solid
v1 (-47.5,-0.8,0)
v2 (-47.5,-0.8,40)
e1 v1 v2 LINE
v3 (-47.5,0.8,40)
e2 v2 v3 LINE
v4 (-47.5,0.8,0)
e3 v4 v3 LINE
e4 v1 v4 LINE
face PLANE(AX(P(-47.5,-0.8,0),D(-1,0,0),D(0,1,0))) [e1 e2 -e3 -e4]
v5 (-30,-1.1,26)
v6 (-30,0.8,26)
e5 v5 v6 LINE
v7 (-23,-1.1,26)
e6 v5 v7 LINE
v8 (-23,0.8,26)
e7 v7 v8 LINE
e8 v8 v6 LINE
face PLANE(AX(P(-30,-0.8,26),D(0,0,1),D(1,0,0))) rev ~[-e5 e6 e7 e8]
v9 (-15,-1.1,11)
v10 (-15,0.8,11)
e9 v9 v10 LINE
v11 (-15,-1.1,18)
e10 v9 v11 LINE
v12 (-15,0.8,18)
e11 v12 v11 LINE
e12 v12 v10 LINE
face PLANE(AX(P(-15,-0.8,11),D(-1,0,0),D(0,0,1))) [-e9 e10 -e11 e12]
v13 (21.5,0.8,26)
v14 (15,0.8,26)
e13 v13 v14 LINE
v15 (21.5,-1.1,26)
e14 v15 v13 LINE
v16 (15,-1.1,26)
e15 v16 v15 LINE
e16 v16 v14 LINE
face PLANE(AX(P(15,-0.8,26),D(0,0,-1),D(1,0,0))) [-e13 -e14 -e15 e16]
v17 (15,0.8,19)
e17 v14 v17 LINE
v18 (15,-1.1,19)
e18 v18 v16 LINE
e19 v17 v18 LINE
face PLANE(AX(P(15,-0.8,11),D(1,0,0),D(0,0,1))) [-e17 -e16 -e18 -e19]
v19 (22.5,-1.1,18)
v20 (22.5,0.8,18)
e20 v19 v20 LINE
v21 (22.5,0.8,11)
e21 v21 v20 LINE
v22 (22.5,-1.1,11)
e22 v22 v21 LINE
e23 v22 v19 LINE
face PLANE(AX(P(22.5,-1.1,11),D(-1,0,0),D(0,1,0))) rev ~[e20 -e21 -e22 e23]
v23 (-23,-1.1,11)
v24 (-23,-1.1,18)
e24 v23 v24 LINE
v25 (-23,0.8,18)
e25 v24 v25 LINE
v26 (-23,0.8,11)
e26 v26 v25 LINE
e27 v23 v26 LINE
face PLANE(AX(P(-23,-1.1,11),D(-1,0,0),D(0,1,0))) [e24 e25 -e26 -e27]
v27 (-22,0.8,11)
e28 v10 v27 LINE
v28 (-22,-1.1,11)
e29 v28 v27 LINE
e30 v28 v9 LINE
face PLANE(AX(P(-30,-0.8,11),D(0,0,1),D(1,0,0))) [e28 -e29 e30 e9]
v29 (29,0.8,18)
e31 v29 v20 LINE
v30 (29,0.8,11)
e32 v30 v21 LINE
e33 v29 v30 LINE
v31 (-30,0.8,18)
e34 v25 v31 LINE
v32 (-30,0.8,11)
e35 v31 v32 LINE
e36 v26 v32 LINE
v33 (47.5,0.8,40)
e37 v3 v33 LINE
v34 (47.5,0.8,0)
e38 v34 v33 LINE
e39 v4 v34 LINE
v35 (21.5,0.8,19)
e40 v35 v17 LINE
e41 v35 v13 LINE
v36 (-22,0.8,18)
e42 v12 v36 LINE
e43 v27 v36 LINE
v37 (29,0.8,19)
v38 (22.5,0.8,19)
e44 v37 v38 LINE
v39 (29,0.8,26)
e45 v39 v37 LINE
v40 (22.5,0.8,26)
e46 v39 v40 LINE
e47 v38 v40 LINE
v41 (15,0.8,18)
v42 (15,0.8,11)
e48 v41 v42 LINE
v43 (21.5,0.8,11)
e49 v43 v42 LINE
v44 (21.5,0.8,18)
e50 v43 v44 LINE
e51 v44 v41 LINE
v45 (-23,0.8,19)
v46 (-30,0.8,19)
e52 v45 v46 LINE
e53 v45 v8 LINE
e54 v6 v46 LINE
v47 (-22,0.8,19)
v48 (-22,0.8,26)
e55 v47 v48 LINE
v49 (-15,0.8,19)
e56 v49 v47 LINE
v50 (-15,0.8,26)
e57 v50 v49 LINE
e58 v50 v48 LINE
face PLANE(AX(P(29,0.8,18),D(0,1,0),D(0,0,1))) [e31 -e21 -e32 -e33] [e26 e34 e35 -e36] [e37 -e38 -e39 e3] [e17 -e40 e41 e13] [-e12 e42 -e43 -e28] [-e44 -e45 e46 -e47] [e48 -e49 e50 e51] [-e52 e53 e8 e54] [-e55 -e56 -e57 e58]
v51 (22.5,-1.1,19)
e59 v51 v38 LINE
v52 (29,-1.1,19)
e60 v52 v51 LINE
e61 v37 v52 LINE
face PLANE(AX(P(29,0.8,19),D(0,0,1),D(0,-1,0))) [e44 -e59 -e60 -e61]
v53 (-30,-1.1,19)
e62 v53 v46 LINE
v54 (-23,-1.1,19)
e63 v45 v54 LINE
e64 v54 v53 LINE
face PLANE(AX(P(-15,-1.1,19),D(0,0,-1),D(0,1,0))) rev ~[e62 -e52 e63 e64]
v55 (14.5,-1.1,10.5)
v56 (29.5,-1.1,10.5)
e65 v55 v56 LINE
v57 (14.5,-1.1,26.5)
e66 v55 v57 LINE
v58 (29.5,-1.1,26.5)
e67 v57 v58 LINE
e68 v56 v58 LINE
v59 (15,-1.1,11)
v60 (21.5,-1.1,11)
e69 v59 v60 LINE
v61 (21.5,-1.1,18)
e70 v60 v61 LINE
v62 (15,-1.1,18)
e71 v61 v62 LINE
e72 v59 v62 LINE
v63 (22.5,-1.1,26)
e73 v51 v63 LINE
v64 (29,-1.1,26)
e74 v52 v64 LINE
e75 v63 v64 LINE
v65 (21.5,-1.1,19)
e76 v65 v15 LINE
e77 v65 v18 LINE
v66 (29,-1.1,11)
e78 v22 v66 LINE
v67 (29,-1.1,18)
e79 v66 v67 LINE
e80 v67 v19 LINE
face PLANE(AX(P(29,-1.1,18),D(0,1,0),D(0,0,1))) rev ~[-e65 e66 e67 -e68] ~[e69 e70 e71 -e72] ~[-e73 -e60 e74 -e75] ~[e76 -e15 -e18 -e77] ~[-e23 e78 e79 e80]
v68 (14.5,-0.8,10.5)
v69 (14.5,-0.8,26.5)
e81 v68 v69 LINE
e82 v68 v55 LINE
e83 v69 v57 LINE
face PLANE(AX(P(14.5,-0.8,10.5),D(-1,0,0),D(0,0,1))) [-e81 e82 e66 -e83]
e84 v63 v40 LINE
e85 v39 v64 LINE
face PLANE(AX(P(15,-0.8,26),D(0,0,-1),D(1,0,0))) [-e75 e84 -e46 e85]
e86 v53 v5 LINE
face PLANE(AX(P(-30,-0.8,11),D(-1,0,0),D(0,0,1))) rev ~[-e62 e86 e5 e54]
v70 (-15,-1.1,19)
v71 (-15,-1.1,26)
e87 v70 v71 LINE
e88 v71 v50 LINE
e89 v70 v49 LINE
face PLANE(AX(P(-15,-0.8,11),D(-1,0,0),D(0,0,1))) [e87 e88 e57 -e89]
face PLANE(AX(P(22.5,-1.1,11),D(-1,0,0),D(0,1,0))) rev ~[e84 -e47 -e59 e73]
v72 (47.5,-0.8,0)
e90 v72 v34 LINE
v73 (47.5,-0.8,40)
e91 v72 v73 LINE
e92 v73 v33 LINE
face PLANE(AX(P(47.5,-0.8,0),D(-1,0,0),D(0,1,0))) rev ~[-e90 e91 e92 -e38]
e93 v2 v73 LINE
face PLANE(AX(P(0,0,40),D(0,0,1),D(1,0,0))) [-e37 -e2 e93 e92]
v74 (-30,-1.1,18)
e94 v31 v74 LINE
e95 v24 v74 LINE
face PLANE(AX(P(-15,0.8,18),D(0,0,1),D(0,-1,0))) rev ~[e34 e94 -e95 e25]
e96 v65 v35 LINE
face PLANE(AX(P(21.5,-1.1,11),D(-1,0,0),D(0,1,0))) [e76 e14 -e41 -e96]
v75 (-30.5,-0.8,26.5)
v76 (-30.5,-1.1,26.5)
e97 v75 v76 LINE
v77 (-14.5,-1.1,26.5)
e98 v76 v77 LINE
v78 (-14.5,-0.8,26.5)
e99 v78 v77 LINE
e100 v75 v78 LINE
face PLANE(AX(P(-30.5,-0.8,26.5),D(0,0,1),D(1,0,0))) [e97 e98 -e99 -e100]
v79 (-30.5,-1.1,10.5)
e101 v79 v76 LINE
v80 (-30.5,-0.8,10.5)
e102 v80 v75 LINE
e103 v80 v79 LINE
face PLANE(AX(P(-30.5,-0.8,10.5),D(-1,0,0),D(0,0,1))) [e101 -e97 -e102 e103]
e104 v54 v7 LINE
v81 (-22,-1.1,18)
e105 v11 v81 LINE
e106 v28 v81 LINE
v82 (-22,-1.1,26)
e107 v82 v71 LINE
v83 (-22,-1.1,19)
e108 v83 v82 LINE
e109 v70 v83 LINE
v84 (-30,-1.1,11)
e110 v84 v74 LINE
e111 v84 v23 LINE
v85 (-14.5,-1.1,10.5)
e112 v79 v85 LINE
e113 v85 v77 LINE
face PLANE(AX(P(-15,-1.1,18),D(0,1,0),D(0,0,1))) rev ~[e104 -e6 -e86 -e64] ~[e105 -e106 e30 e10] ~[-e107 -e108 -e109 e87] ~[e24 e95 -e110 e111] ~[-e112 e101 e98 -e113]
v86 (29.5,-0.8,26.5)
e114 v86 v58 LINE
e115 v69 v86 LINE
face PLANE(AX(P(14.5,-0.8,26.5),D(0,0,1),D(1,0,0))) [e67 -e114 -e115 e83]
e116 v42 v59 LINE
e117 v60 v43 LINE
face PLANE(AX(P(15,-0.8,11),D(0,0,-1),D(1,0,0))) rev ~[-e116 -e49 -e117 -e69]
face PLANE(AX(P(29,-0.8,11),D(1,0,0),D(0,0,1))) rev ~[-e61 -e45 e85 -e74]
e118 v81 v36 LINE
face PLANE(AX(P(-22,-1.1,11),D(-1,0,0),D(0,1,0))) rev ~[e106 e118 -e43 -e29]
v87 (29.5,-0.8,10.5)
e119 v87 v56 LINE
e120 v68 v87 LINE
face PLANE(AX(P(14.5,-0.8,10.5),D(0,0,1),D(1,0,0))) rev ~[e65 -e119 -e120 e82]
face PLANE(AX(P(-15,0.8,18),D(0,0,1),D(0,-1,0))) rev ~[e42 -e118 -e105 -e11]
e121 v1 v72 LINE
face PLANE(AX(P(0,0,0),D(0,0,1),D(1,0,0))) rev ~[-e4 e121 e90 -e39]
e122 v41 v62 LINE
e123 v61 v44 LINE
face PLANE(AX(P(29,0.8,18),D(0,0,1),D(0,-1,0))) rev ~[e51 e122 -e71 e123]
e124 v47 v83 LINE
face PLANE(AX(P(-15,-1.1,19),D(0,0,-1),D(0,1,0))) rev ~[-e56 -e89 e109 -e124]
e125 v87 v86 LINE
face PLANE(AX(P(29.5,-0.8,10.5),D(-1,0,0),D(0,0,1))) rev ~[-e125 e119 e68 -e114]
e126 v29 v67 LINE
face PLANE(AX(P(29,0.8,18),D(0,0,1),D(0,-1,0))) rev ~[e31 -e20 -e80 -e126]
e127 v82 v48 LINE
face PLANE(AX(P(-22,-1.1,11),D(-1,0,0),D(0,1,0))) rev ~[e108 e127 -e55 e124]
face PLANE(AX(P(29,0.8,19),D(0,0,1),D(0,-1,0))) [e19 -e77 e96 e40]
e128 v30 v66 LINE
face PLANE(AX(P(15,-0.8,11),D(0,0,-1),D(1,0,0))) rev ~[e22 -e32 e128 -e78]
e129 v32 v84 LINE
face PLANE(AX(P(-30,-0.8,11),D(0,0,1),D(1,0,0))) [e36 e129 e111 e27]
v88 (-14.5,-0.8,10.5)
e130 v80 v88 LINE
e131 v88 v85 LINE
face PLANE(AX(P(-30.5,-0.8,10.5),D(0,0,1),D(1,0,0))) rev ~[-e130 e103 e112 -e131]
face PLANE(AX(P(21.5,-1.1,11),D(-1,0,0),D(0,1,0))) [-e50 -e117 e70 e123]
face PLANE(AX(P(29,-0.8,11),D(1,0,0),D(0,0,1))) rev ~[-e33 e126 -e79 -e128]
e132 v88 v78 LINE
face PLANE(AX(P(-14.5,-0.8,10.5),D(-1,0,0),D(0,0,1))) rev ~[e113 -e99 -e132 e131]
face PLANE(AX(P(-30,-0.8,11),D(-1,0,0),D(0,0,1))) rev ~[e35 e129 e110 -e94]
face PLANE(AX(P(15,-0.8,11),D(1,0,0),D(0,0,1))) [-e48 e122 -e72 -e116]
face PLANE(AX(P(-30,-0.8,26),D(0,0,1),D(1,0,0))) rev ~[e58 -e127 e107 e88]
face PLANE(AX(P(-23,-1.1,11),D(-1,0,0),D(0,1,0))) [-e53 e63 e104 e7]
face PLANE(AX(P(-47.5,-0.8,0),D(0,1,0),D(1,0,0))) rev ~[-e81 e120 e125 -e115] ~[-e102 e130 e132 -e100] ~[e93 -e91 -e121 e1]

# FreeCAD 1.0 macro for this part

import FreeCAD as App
import Part
import Sketcher

V = App.Vector

doc = App.newDocument("Part")
body = doc.addObject("PartDesign::Body", "Body")

# Sketch on XY plane
sketch1 = body.newObject("Sketcher::SketchObject", "Sketch")
sketch1.AttachmentSupport = (doc.getObject("XY_Plane"), [""])
sketch1.MapMode = "FlatFace"
sketch1.addGeometry([
    Part.LineSegment(V(-47.5, 0.8, 0), V(-47.5, -0.8, 0)),
    Part.LineSegment(V(-47.5, -0.8, 0), V(47.5, -0.8, 0)),
    Part.LineSegment(V(47.5, -0.8, 0), V(47.5, 0.8, 0)),
    Part.LineSegment(V(47.5, 0.8, 0), V(-47.5, 0.8, 0)),
], False)
sketch1.addConstraint([
    Sketcher.Constraint("Coincident", 0, 2, 1, 1),
    Sketcher.Constraint("Coincident", 1, 2, 2, 1),
    Sketcher.Constraint("Coincident", 2, 2, 3, 1),
    Sketcher.Constraint("Coincident", 3, 2, 0, 1),
    Sketcher.Constraint("Vertical", 0),
    Sketcher.Constraint("Horizontal", 1),
    Sketcher.Constraint("Vertical", 2),
    Sketcher.Constraint("Horizontal", 3),
    Sketcher.Constraint("Symmetric", 0, 2, 2, 2, -1, 1),
    Sketcher.Constraint("DistanceX", 1, 1, 1, 2, 95.0),
    Sketcher.Constraint("DistanceY", 0, 2, 0, 1, 1.6),
])
pad1 = body.newObject("PartDesign::Pad", "Pad")
pad1.Profile = sketch1
pad1.Length = 40

# Sketch on XZ plane
sketch2 = body.newObject("Sketcher::SketchObject", "Sketch001")
sketch2.AttachmentSupport = (doc.getObject("XZ_Plane"), [""])
sketch2.MapMode = "FlatFace"
sketch2.AttachmentOffset = App.Placement(V(0, 0, 0.8), App.Rotation())
sketch2.addGeometry([
    Part.LineSegment(V(-30, 26, 0), V(-30, 11, 0)),  # 0
    Part.LineSegment(V(-30, 11, 0), V(-15, 11, 0)),  # 1
    Part.LineSegment(V(-15, 11, 0), V(-15, 26, 0)),  # 2
    Part.LineSegment(V(-15, 26, 0), V(-30, 26, 0)),  # 3
    Part.LineSegment(V(15, 26, 0), V(15, 11, 0)),  # 4
    Part.LineSegment(V(15, 11, 0), V(29, 11, 0)),  # 5
    Part.LineSegment(V(29, 11, 0), V(29, 26, 0)),  # 6
    Part.LineSegment(V(29, 26, 0), V(15, 26, 0)),  # 7
], False)
sketch2.addConstraint([
    Sketcher.Constraint("Coincident", 0, 2, 1, 1),
    Sketcher.Constraint("Coincident", 1, 2, 2, 1),
    Sketcher.Constraint("Coincident", 2, 2, 3, 1),
    Sketcher.Constraint("Coincident", 3, 2, 0, 1),
    Sketcher.Constraint("Coincident", 4, 2, 5, 1),
    Sketcher.Constraint("Coincident", 5, 2, 6, 1),
    Sketcher.Constraint("Coincident", 6, 2, 7, 1),
    Sketcher.Constraint("Coincident", 7, 2, 4, 1),
    Sketcher.Constraint("Vertical", 0),
    Sketcher.Constraint("Horizontal", 1),
    Sketcher.Constraint("Vertical", 2),
    Sketcher.Constraint("Horizontal", 3),
    Sketcher.Constraint("Vertical", 4),
    Sketcher.Constraint("Horizontal", 5),
    Sketcher.Constraint("Vertical", 6),
    Sketcher.Constraint("Horizontal", 7),
    Sketcher.Constraint("Symmetric", 1, 2, 4, 2, -2),
    Sketcher.Constraint("Horizontal", 3, 2, 6, 2),
    Sketcher.Constraint("Equal", 3, 0),
    Sketcher.Constraint("DistanceX", 1, 1, 1, 2, 15.0),
    Sketcher.Constraint("DistanceX", 5, 1, 5, 2, 14.0),
    Sketcher.Constraint("DistanceX", 0, 2, -1, 1, 30.0),
    Sketcher.Constraint("DistanceY", -1, 1, 0, 2, 11.0),
])
pocket1 = body.newObject("PartDesign::Pocket", "Pocket")
pocket1.Profile = sketch2
pocket1.Length = 25

# Sketch on XZ plane
sketch3 = body.newObject("Sketcher::SketchObject", "Sketch002")
sketch3.AttachmentSupport = (doc.getObject("XZ_Plane"), [""])
sketch3.MapMode = "FlatFace"
sketch3.AttachmentOffset = App.Placement(V(0, 0, 0.8), App.Rotation())
sketch3.addGeometry([
    Part.LineSegment(V(-30.5, 26.5, 0), V(-30.5, 10.5, 0)),  # 0
    Part.LineSegment(V(-30.5, 10.5, 0), V(-14.5, 10.5, 0)),  # 1
    Part.LineSegment(V(-14.5, 10.5, 0), V(-14.5, 26.5, 0)),  # 2
    Part.LineSegment(V(-14.5, 26.5, 0), V(-30.5, 26.5, 0)),  # 3
    Part.LineSegment(V(-15, 11, 0), V(-30, 11, 0)),  # 4
    Part.LineSegment(V(-30, 11, 0), V(-30, 26, 0)),  # 5
    Part.LineSegment(V(-30, 26, 0), V(-15, 26, 0)),  # 6
    Part.LineSegment(V(-15, 26, 0), V(-15, 11, 0)),  # 7
    Part.LineSegment(V(14.5, 26.5, 0), V(14.5, 10.5, 0)),  # 8
    Part.LineSegment(V(14.5, 10.5, 0), V(29.5, 10.5, 0)),  # 9
    Part.LineSegment(V(29.5, 10.5, 0), V(29.5, 26.5, 0)),  # 10
    Part.LineSegment(V(29.5, 26.5, 0), V(14.5, 26.5, 0)),  # 11
    Part.LineSegment(V(29, 11, 0), V(15, 11, 0)),  # 12
    Part.LineSegment(V(15, 11, 0), V(15, 26, 0)),  # 13
    Part.LineSegment(V(15, 26, 0), V(29, 26, 0)),  # 14
    Part.LineSegment(V(29, 26, 0), V(29, 11, 0)),  # 15
], False)
sketch3.addConstraint([
    Sketcher.Constraint("Coincident", 0, 2, 1, 1),
    Sketcher.Constraint("Coincident", 1, 2, 2, 1),
    Sketcher.Constraint("Coincident", 2, 2, 3, 1),
    Sketcher.Constraint("Coincident", 3, 2, 0, 1),
    Sketcher.Constraint("Coincident", 4, 2, 5, 1),
    Sketcher.Constraint("Coincident", 5, 2, 6, 1),
    Sketcher.Constraint("Coincident", 6, 2, 7, 1),
    Sketcher.Constraint("Coincident", 7, 2, 4, 1),
    Sketcher.Constraint("Coincident", 8, 2, 9, 1),
    Sketcher.Constraint("Coincident", 9, 2, 10, 1),
    Sketcher.Constraint("Coincident", 10, 2, 11, 1),
    Sketcher.Constraint("Coincident", 11, 2, 8, 1),
    Sketcher.Constraint("Coincident", 12, 2, 13, 1),
    Sketcher.Constraint("Coincident", 13, 2, 14, 1),
    Sketcher.Constraint("Coincident", 14, 2, 15, 1),
    Sketcher.Constraint("Coincident", 15, 2, 12, 1),
    Sketcher.Constraint("Vertical", 0),
    Sketcher.Constraint("Horizontal", 1),
    Sketcher.Constraint("Vertical", 2),
    Sketcher.Constraint("Horizontal", 3),
    Sketcher.Constraint("Horizontal", 4),
    Sketcher.Constraint("Vertical", 5),
    Sketcher.Constraint("Horizontal", 6),
    Sketcher.Constraint("Vertical", 7),
    Sketcher.Constraint("Vertical", 8),
    Sketcher.Constraint("Horizontal", 9),
    Sketcher.Constraint("Vertical", 10),
    Sketcher.Constraint("Horizontal", 11),
    Sketcher.Constraint("Horizontal", 12),
    Sketcher.Constraint("Vertical", 13),
    Sketcher.Constraint("Horizontal", 14),
    Sketcher.Constraint("Vertical", 15),
    Sketcher.Constraint("Symmetric", 1, 2, 8, 2, -2),
    Sketcher.Constraint("Symmetric", 7, 2, 12, 2, -2),
    Sketcher.Constraint("Horizontal", 3, 2, 10, 2),
    Sketcher.Constraint("Horizontal", 6, 2, 13, 2),
    Sketcher.Constraint("Equal", 6, 9),
    Sketcher.Constraint("Equal", 3, 0),
    Sketcher.Constraint("Equal", 11, 5),
    Sketcher.Constraint("DistanceX", 1, 1, 1, 2, 16.0),
    Sketcher.Constraint("DistanceX", 4, 2, 4, 1, 15.0),
    Sketcher.Constraint("DistanceX", 12, 2, 12, 1, 14.0),
    Sketcher.Constraint("DistanceX", 4, 2, -1, 1, 30.0),
    Sketcher.Constraint("DistanceY", -1, 1, 4, 2, 11.0),
    Sketcher.Constraint("DistanceX", 1, 2, 8, 2, 29.0),
    Sketcher.Constraint("DistanceY", -1, 1, 0, 2, 10.5),
])
pad2 = body.newObject("PartDesign::Pad", "Pad001")
pad2.Profile = sketch3
pad2.Length = 0.3

# Sketch on XY plane
sketch4 = body.newObject("Sketcher::SketchObject", "Sketch003")
sketch4.AttachmentSupport = (doc.getObject("XY_Plane"), [""])
sketch4.MapMode = "FlatFace"
sketch4.AttachmentOffset = App.Placement(V(0, 0, 11), App.Rotation())
sketch4.addGeometry([
    Part.LineSegment(V(21.5, 0.8, 0), V(21.5, -1.1, 0)),  # 0
    Part.LineSegment(V(21.5, -1.1, 0), V(22.5, -1.1, 0)),  # 1
    Part.LineSegment(V(22.5, -1.1, 0), V(22.5, 0.8, 0)),  # 2
    Part.LineSegment(V(22.5, 0.8, 0), V(21.5, 0.8, 0)),  # 3
    Part.LineSegment(V(-23, 0.8, 0), V(-23, -1.1, 0)),  # 4
    Part.LineSegment(V(-23, -1.1, 0), V(-22, -1.1, 0)),  # 5
    Part.LineSegment(V(-22, -1.1, 0), V(-22, 0.8, 0)),  # 6
    Part.LineSegment(V(-22, 0.8, 0), V(-23, 0.8, 0)),  # 7
], False)
sketch4.addConstraint([
    Sketcher.Constraint("Coincident", 0, 2, 1, 1),
    Sketcher.Constraint("Coincident", 1, 2, 2, 1),
    Sketcher.Constraint("Coincident", 2, 2, 3, 1),
    Sketcher.Constraint("Coincident", 3, 2, 0, 1),
    Sketcher.Constraint("Coincident", 4, 2, 5, 1),
    Sketcher.Constraint("Coincident", 5, 2, 6, 1),
    Sketcher.Constraint("Coincident", 6, 2, 7, 1),
    Sketcher.Constraint("Coincident", 7, 2, 4, 1),
    Sketcher.Constraint("Vertical", 0),
    Sketcher.Constraint("Horizontal", 1),
    Sketcher.Constraint("Vertical", 2),
    Sketcher.Constraint("Horizontal", 3),
    Sketcher.Constraint("Vertical", 4),
    Sketcher.Constraint("Horizontal", 5),
    Sketcher.Constraint("Vertical", 6),
    Sketcher.Constraint("Horizontal", 7),
    Sketcher.Constraint("Horizontal", 1, 2, 4, 2),
    Sketcher.Constraint("Horizontal", 3, 2, 6, 2),
    Sketcher.Constraint("Equal", 3, 5),
    Sketcher.Constraint("DistanceX", 1, 1, 1, 2, 1.0),
    Sketcher.Constraint("DistanceY", 0, 2, 0, 1, 1.9),
    Sketcher.Constraint("DistanceX", 4, 2, -1, 1, 23.0),
    Sketcher.Constraint("DistanceX", -1, 1, 0, 2, 21.5),
    Sketcher.Constraint("DistanceY", 0, 2, -1, 1, 1.1),
])
pad3 = body.newObject("PartDesign::Pad", "Pad002")
pad3.Profile = sketch4
pad3.Length = 15

# Sketch on YZ plane
sketch5 = body.newObject("Sketcher::SketchObject", "Sketch004")
sketch5.AttachmentSupport = (doc.getObject("YZ_Plane"), [""])
sketch5.MapMode = "FlatFace"
sketch5.AttachmentOffset = App.Placement(V(0, 0, -15), App.Rotation())
sketch5.addGeometry([
    Part.LineSegment(V(0.8, 18, 0), V(-1.1, 18, 0)),
    Part.LineSegment(V(-1.1, 18, 0), V(-1.1, 19, 0)),
    Part.LineSegment(V(-1.1, 19, 0), V(0.8, 19, 0)),
    Part.LineSegment(V(0.8, 19, 0), V(0.8, 18, 0)),
], False)
sketch5.addConstraint([
    Sketcher.Constraint("Coincident", 0, 2, 1, 1),
    Sketcher.Constraint("Coincident", 1, 2, 2, 1),
    Sketcher.Constraint("Coincident", 2, 2, 3, 1),
    Sketcher.Constraint("Coincident", 3, 2, 0, 1),
    Sketcher.Constraint("Horizontal", 0),
    Sketcher.Constraint("Vertical", 1),
    Sketcher.Constraint("Horizontal", 2),
    Sketcher.Constraint("Vertical", 3),
    Sketcher.Constraint("DistanceY", 1, 1, 1, 2, 1.0),
    Sketcher.Constraint("DistanceX", 0, 2, 0, 1, 1.9),
    Sketcher.Constraint("DistanceY", -1, 1, 0, 2, 18.0),
    Sketcher.Constraint("DistanceX", 0, 2, -1, 1, 1.1),
])
pad4 = body.newObject("PartDesign::Pad", "Pad003")
pad4.Profile = sketch5
pad4.Length = 15
pad4.Reversed = True

# Sketch on YZ plane
sketch6 = body.newObject("Sketcher::SketchObject", "Sketch005")
sketch6.AttachmentSupport = (doc.getObject("YZ_Plane"), [""])
sketch6.MapMode = "FlatFace"
sketch6.AttachmentOffset = App.Placement(V(0, 0, 29), App.Rotation())
sketch6.addGeometry([
    Part.LineSegment(V(0.8, 19, 0), V(0.8, 18, 0)),
    Part.LineSegment(V(0.8, 18, 0), V(-1.1, 18, 0)),
    Part.LineSegment(V(-1.1, 18, 0), V(-1.1, 19, 0)),
    Part.LineSegment(V(-1.1, 19, 0), V(0.8, 19, 0)),
], False)
sketch6.addConstraint([
    Sketcher.Constraint("Coincident", 0, 2, 1, 1),
    Sketcher.Constraint("Coincident", 1, 2, 2, 1),
    Sketcher.Constraint("Coincident", 2, 2, 3, 1),
    Sketcher.Constraint("Coincident", 3, 2, 0, 1),
    Sketcher.Constraint("Vertical", 0),
    Sketcher.Constraint("Horizontal", 1),
    Sketcher.Constraint("Vertical", 2),
    Sketcher.Constraint("Horizontal", 3),
    Sketcher.Constraint("DistanceY", 0, 2, 0, 1, 1.0),
    Sketcher.Constraint("DistanceX", 1, 2, 1, 1, 1.9),
    Sketcher.Constraint("DistanceY", -1, 1, 0, 2, 18.0),
    Sketcher.Constraint("DistanceX", -1, 1, 0, 2, 0.8),
])
pad5 = body.newObject("PartDesign::Pad", "Pad004")
pad5.Profile = sketch6
pad5.Length = 14
pad5.Reversed = True

doc.recompute()
